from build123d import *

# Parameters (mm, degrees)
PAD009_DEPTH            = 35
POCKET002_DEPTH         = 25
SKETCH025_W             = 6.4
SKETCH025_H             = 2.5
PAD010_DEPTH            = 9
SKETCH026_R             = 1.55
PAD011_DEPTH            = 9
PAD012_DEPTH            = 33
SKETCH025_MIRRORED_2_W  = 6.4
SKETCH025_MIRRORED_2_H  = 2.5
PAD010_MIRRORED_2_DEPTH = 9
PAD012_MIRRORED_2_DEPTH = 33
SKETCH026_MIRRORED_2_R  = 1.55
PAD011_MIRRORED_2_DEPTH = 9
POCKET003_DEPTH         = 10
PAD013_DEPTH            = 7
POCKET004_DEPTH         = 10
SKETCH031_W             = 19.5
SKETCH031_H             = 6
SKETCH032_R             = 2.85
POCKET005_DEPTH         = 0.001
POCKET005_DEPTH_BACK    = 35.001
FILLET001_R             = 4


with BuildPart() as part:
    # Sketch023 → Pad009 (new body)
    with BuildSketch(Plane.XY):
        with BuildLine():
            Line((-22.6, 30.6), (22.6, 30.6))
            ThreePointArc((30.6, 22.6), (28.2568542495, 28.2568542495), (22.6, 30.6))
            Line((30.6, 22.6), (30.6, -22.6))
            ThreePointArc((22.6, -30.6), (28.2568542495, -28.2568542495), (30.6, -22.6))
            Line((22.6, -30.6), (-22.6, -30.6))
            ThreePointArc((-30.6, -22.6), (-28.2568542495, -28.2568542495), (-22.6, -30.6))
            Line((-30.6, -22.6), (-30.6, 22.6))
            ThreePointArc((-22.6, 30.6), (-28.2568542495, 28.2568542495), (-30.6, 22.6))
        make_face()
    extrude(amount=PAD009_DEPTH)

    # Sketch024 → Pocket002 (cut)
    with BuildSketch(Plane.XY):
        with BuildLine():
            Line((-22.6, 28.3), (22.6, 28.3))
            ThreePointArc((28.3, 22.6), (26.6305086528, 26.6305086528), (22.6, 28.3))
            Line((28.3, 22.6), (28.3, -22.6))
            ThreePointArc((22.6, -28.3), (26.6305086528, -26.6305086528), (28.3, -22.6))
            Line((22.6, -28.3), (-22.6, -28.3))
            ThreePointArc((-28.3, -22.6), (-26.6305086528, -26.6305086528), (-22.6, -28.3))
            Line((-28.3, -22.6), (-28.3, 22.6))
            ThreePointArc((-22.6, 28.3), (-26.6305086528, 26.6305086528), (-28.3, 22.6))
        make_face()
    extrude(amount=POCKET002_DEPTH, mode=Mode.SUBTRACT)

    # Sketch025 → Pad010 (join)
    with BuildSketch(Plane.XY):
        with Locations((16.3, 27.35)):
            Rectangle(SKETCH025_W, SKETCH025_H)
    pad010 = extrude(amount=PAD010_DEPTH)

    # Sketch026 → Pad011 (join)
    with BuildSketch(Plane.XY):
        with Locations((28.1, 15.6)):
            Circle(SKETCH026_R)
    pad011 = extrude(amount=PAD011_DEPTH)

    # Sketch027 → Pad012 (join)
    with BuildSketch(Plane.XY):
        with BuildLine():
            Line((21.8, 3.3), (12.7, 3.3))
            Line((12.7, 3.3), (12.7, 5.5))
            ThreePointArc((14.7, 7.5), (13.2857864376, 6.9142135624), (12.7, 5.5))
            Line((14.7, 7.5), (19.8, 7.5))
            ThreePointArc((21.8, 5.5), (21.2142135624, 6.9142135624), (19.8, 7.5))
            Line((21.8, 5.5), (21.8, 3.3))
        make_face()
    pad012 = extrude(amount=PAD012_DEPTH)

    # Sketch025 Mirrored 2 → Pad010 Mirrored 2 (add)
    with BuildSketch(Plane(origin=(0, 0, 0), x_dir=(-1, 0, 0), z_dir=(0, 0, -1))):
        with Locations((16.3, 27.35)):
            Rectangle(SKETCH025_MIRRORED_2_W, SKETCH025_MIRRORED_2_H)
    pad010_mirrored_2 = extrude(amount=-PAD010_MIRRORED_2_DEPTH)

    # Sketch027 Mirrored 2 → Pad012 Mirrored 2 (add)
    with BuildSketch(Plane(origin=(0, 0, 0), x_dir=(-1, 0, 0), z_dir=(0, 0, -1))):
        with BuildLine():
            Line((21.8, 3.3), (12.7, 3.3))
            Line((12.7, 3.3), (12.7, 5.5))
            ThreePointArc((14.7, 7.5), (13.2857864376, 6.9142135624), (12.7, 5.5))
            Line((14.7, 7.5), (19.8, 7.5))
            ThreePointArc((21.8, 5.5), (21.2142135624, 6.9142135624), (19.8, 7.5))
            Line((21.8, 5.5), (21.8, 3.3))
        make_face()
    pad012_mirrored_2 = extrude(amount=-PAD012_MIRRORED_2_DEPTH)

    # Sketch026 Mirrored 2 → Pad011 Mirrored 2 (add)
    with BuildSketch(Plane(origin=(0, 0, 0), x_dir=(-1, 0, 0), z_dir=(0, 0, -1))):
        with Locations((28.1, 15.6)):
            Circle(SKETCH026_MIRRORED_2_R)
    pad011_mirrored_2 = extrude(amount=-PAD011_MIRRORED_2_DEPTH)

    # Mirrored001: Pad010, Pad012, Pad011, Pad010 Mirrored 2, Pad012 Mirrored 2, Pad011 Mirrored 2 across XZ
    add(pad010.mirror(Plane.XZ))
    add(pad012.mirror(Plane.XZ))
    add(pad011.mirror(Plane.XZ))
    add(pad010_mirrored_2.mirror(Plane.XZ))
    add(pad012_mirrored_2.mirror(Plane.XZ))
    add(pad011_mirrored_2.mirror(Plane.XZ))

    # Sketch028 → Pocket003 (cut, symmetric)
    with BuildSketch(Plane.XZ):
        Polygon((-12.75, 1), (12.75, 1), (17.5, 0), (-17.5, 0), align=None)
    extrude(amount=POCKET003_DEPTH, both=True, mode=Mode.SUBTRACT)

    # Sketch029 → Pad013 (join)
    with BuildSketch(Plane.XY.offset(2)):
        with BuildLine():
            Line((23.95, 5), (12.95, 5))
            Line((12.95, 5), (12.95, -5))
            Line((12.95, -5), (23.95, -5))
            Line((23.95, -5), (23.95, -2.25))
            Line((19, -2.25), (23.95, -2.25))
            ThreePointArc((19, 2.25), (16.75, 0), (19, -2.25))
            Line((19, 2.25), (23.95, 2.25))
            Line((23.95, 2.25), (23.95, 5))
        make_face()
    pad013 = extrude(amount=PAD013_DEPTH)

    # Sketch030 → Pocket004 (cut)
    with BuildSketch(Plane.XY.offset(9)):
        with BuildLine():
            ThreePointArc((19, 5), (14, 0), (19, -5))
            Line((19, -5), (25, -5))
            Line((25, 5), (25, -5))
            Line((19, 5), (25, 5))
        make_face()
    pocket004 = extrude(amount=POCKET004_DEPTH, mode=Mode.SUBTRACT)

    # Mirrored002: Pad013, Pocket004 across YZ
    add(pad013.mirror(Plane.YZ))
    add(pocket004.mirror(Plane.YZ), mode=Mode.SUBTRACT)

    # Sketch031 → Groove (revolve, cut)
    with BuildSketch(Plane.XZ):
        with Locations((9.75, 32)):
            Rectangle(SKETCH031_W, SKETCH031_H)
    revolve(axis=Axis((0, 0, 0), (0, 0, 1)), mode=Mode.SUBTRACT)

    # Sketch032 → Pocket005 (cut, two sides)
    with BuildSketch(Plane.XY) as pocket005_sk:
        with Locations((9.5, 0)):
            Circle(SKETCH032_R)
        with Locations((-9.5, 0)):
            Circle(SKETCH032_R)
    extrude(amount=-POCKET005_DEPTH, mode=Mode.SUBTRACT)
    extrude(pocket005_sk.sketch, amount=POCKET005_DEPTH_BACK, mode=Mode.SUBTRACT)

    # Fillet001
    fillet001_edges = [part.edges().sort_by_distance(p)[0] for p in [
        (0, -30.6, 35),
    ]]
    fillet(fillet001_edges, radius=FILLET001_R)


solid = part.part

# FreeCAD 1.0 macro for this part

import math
import FreeCAD as App
import Part
import Sketcher


def edges_at(feature, points):
    """Names of the edges that pass closest to the given points."""
    edges = feature.Shape.Edges
    near = lambda p: min(range(len(edges)), key=lambda i: edges[i].distToShape(Part.Vertex(*p))[0])
    return sorted({f"Edge{near(p) + 1}" for p in points})

doc = App.newDocument("Part")
params = doc.addObject("Spreadsheet::Sheet", "Params")
for row, (alias, value) in enumerate([
    ("sketch1_radius", "8 mm"),
    ("sketch1_width", "45.2 mm"),
    ("pad1_length", "35 mm"),
    ("sketch2_radius", "5.7 mm"),
    ("sketch2_width", "45.2 mm"),
    ("pocket1_length", "25 mm"),
    ("sketch3_width", "6.4 mm"),
    ("sketch3_height", "2.5 mm"),
    ("pad2_length", "9 mm"),
    ("sketch4_diameter", "3.1 mm"),
    ("pad3_length", "9 mm"),
    ("sketch5_radius", "2 mm"),
    ("sketch5_width", "9.1 mm"),
    ("sketch5_height", "2.2 mm"),
    ("pad4_length", "33 mm"),
    ("sketch6_width", "6.4 mm"),
    ("sketch6_height", "2.5 mm"),
    ("pad5_length", "9 mm"),
    ("sketch7_radius", "2 mm"),
    ("sketch7_width", "9.1 mm"),
    ("sketch7_height", "2.2 mm"),
    ("pad6_length", "33 mm"),
    ("sketch8_diameter", "3.1 mm"),
    ("pad7_length", "9 mm"),
    ("sketch9_width", "35 mm"),
    ("sketch9_width2", "25.5 mm"),
    ("pocket2_length", "20 mm"),
    ("sketch10_width", "11 mm"),
    ("sketch10_height", "10 mm"),
    ("sketch10_radius", "2.25 mm"),
    ("sketch10_width2", "4.95 mm"),
    ("pad8_length", "7 mm"),
    ("sketch11_radius", "5 mm"),
    ("sketch11_width", "6 mm"),
    ("pocket3_length", "10 mm"),
    ("sketch12_height", "6 mm"),
    ("sketch12_width", "19.5 mm"),
    ("groove_angle", "360 deg"),
    ("sketch13_diameter", "5.7 mm"),
    ("fillet_radius", "4 mm"),
], start=1):
    params.set(f"A{row}", alias)
    params.set(f"B{row}", "=" + value)
    params.setAlias(f"B{row}", alias)

body = doc.addObject("PartDesign::Body", "Body")

sketch1 = body.newObject("Sketcher::SketchObject", "Sketch")
sketch1.AttachmentSupport = (doc.getObject("XY_Plane"), [""])
sketch1.MapMode = "FlatFace"
sketch1.addGeometry([
    Part.LineSegment(App.Vector(23, 31, 0), App.Vector(-23, 31, 0)),
    Part.ArcOfCircle(Part.Circle(App.Vector(-23, 23, 0), App.Vector(0, 0, 1), 8), math.radians(90), math.radians(180)),
    Part.LineSegment(App.Vector(-31, 23, 0), App.Vector(-31, -23, 0)),
    Part.ArcOfCircle(Part.Circle(App.Vector(-23, -23, 0), App.Vector(0, 0, 1), 8), math.radians(180), math.radians(270)),
    Part.LineSegment(App.Vector(-23, -31, 0), App.Vector(23, -31, 0)),
    Part.ArcOfCircle(Part.Circle(App.Vector(23, -23, 0), App.Vector(0, 0, 1), 8), math.radians(-90), math.radians(0)),
    Part.LineSegment(App.Vector(31, -23, 0), App.Vector(31, 23, 0)),
    Part.ArcOfCircle(Part.Circle(App.Vector(23, 23, 0), App.Vector(0, 0, 1), 8), math.radians(0), math.radians(90)),
], False)
sketch1.addConstraint([
    Sketcher.Constraint("Tangent", 0, 2, 1, 1),
    Sketcher.Constraint("Tangent", 1, 2, 2, 1),
    Sketcher.Constraint("Tangent", 2, 2, 3, 1),
    Sketcher.Constraint("Tangent", 3, 2, 4, 1),
    Sketcher.Constraint("Tangent", 4, 2, 5, 1),
    Sketcher.Constraint("Tangent", 5, 2, 6, 1),
    Sketcher.Constraint("Tangent", 6, 2, 7, 1),
    Sketcher.Constraint("Tangent", 7, 2, 0, 1),
    Sketcher.Constraint("Horizontal", 0),
    Sketcher.Constraint("Vertical", 2),
    Sketcher.Constraint("Horizontal", 4),
    Sketcher.Constraint("Vertical", 6),
    Sketcher.Constraint("Equal", 1, 3),
    Sketcher.Constraint("Equal", 3, 5),
    Sketcher.Constraint("Equal", 5, 7),
    Sketcher.Constraint("Symmetric", 1, 3, 5, 3, -1, 1),
    Sketcher.Constraint("Equal", 4, 2),
    Sketcher.Constraint("Radius", 1, 8.0),
    Sketcher.Constraint("DistanceX", 0, 2, 0, 1, 45.2),
])
sketch1.setExpression("Constraints[17]", "Params.sketch1_radius")
sketch1.setExpression("Constraints[18]", "Params.sketch1_width")
pad1 = body.newObject("PartDesign::Pad", "Pad")
pad1.Profile = sketch1
pad1.setExpression("Length", "Params.pad1_length")

sketch2 = body.newObject("Sketcher::SketchObject", "Sketch001")
sketch2.AttachmentSupport = (doc.getObject("XY_Plane"), [""])
sketch2.MapMode = "FlatFace"
sketch2.addGeometry([
    Part.LineSegment(App.Vector(23, 28, 0), App.Vector(-23, 28, 0)),
    Part.ArcOfCircle(Part.Circle(App.Vector(-23, 23, 0), App.Vector(0, 0, 1), 6), math.radians(90), math.radians(180)),
    Part.LineSegment(App.Vector(-28, 23, 0), App.Vector(-28, -23, 0)),
    Part.ArcOfCircle(Part.Circle(App.Vector(-23, -23, 0), App.Vector(0, 0, 1), 6), math.radians(180), math.radians(270)),
    Part.LineSegment(App.Vector(-23, -28, 0), App.Vector(23, -28, 0)),
    Part.ArcOfCircle(Part.Circle(App.Vector(23, -23, 0), App.Vector(0, 0, 1), 6), math.radians(-90), math.radians(0)),
    Part.LineSegment(App.Vector(28, -23, 0), App.Vector(28, 23, 0)),
    Part.ArcOfCircle(Part.Circle(App.Vector(23, 23, 0), App.Vector(0, 0, 1), 6), math.radians(0), math.radians(90)),
], False)
sketch2.addConstraint([
    Sketcher.Constraint("Tangent", 0, 2, 1, 1),
    Sketcher.Constraint("Tangent", 1, 2, 2, 1),
    Sketcher.Constraint("Tangent", 2, 2, 3, 1),
    Sketcher.Constraint("Tangent", 3, 2, 4, 1),
    Sketcher.Constraint("Tangent", 4, 2, 5, 1),
    Sketcher.Constraint("Tangent", 5, 2, 6, 1),
    Sketcher.Constraint("Tangent", 6, 2, 7, 1),
    Sketcher.Constraint("Tangent", 7, 2, 0, 1),
    Sketcher.Constraint("Horizontal", 0),
    Sketcher.Constraint("Vertical", 2),
    Sketcher.Constraint("Horizontal", 4),
    Sketcher.Constraint("Vertical", 6),
    Sketcher.Constraint("Equal", 1, 3),
    Sketcher.Constraint("Equal", 3, 5),
    Sketcher.Constraint("Equal", 5, 7),
    Sketcher.Constraint("Symmetric", 1, 3, 5, 3, -1, 1),
    Sketcher.Constraint("Equal", 4, 2),
    Sketcher.Constraint("Radius", 1, 5.7),
    Sketcher.Constraint("DistanceX", 0, 2, 0, 1, 45.2),
])
sketch2.setExpression("Constraints[17]", "Params.sketch2_radius")
sketch2.setExpression("Constraints[18]", "Params.sketch2_width")
pocket1 = body.newObject("PartDesign::Pocket", "Pocket")
pocket1.Profile = sketch2
pocket1.setExpression("Length", "Params.pocket1_length")
pocket1.Reversed = True

sketch3 = body.newObject("Sketcher::SketchObject", "Sketch002")
sketch3.AttachmentSupport = (doc.getObject("XY_Plane"), [""])
sketch3.MapMode = "FlatFace"
sketch3.addGeometry([
    Part.LineSegment(App.Vector(13.1, 28.6, 0), App.Vector(13.1, 26.1, 0)),
    Part.LineSegment(App.Vector(13.1, 26.1, 0), App.Vector(19.5, 26.1, 0)),
    Part.LineSegment(App.Vector(19.5, 26.1, 0), App.Vector(19.5, 28.6, 0)),
    Part.LineSegment(App.Vector(19.5, 28.6, 0), App.Vector(13.1, 28.6, 0)),
], False)
sketch3.addConstraint([
    Sketcher.Constraint("Coincident", 0, 2, 1, 1),
    Sketcher.Constraint("Coincident", 1, 2, 2, 1),
    Sketcher.Constraint("Coincident", 2, 2, 3, 1),
    Sketcher.Constraint("Coincident", 3, 2, 0, 1),
    Sketcher.Constraint("Vertical", 0),
    Sketcher.Constraint("Horizontal", 1),
    Sketcher.Constraint("Vertical", 2),
    Sketcher.Constraint("Horizontal", 3),
    Sketcher.Constraint("DistanceX", 1, 1, 1, 2, 6.4),
    Sketcher.Constraint("DistanceY", 0, 2, 0, 1, 2.5),
    Sketcher.Constraint("DistanceX", -1, 1, 0, 2, 13.1),
    Sketcher.Constraint("DistanceY", -1, 1, 0, 2, 26.1),
])
sketch3.setExpression("Constraints[8]", "Params.sketch3_width")
sketch3.setExpression("Constraints[9]", "Params.sketch3_height")
pad2 = body.newObject("PartDesign::Pad", "Pad001")
pad2.Profile = sketch3
pad2.setExpression("Length", "Params.pad2_length")

sketch4 = body.newObject("Sketcher::SketchObject", "Sketch003")
sketch4.AttachmentSupport = (doc.getObject("XY_Plane"), [""])
sketch4.MapMode = "FlatFace"
sketch4.addGeometry(Part.Circle(App.Vector(28.1, 15.6, 0), App.Vector(0, 0, 1), 1.6), False)
sketch4.addConstraint([
    Sketcher.Constraint("Diameter", 0, 3.1),
    Sketcher.Constraint("DistanceX", -1, 1, 0, 3, 28.1),
    Sketcher.Constraint("DistanceY", -1, 1, 0, 3, 15.6),
])
sketch4.setExpression("Constraints[0]", "Params.sketch4_diameter")
pad3 = body.newObject("PartDesign::Pad", "Pad002")
pad3.Profile = sketch4
pad3.setExpression("Length", "Params.pad3_length")

sketch5 = body.newObject("Sketcher::SketchObject", "Sketch004")
sketch5.AttachmentSupport = (doc.getObject("XY_Plane"), [""])
sketch5.MapMode = "FlatFace"
sketch5.addGeometry([
    Part.LineSegment(App.Vector(12.7, 3.3, 0), App.Vector(21.8, 3.3, 0)),
    Part.LineSegment(App.Vector(21.8, 3.3, 0), App.Vector(21.8, 5.5, 0)),
    Part.ArcOfCircle(Part.Circle(App.Vector(19.8, 5.5, 0), App.Vector(0, 0, 1), 2), math.radians(0), math.radians(90)),
    Part.LineSegment(App.Vector(19.8, 7.5, 0), App.Vector(14.7, 7.5, 0)),
    Part.ArcOfCircle(Part.Circle(App.Vector(14.7, 5.5, 0), App.Vector(0, 0, 1), 2), math.radians(90), math.radians(180)),
    Part.LineSegment(App.Vector(12.7, 5.5, 0), App.Vector(12.7, 3.3, 0)),
], False)
sketch5.addConstraint([
    Sketcher.Constraint("Coincident", 0, 2, 1, 1),
    Sketcher.Constraint("Tangent", 1, 2, 2, 1),
    Sketcher.Constraint("Tangent", 2, 2, 3, 1),
    Sketcher.Constraint("Tangent", 3, 2, 4, 1),
    Sketcher.Constraint("Tangent", 4, 2, 5, 1),
    Sketcher.Constraint("Coincident", 5, 2, 0, 1),
    Sketcher.Constraint("Horizontal", 0),
    Sketcher.Constraint("Vertical", 1),
    Sketcher.Constraint("Horizontal", 3),
    Sketcher.Constraint("Vertical", 5),
    Sketcher.Constraint("Equal", 2, 4),
    Sketcher.Constraint("Radius", 2, 2.0),
    Sketcher.Constraint("DistanceX", 0, 1, 0, 2, 9.1),
    Sketcher.Constraint("DistanceY", 1, 1, 1, 2, 2.2),
    Sketcher.Constraint("DistanceX", -1, 1, 2, 3, 19.8),
    Sketcher.Constraint("DistanceY", -1, 1, 2, 3, 5.5),
])
sketch5.setExpression("Constraints[11]", "Params.sketch5_radius")
sketch5.setExpression("Constraints[12]", "Params.sketch5_width")
sketch5.setExpression("Constraints[13]", "Params.sketch5_height")
pad4 = body.newObject("PartDesign::Pad", "Pad003")
pad4.Profile = sketch5
pad4.setExpression("Length", "Params.pad4_length")

sketch6 = body.newObject("Sketcher::SketchObject", "Sketch005")
sketch6.AttachmentSupport = (doc.getObject("XY_Plane"), [""])
sketch6.MapMode = "FlatFace"
sketch6.addGeometry([
    Part.LineSegment(App.Vector(-13.1, 28.6, 0), App.Vector(-13.1, 26.1, 0)),
    Part.LineSegment(App.Vector(-13.1, 26.1, 0), App.Vector(-19.5, 26.1, 0)),
    Part.LineSegment(App.Vector(-19.5, 26.1, 0), App.Vector(-19.5, 28.6, 0)),
    Part.LineSegment(App.Vector(-19.5, 28.6, 0), App.Vector(-13.1, 28.6, 0)),
], False)
sketch6.addConstraint([
    Sketcher.Constraint("Coincident", 0, 2, 1, 1),
    Sketcher.Constraint("Coincident", 1, 2, 2, 1),
    Sketcher.Constraint("Coincident", 2, 2, 3, 1),
    Sketcher.Constraint("Coincident", 3, 2, 0, 1),
    Sketcher.Constraint("Vertical", 0),
    Sketcher.Constraint("Horizontal", 1),
    Sketcher.Constraint("Vertical", 2),
    Sketcher.Constraint("Horizontal", 3),
    Sketcher.Constraint("DistanceX", 1, 2, 1, 1, 6.4),
    Sketcher.Constraint("DistanceY", 0, 2, 0, 1, 2.5),
    Sketcher.Constraint("DistanceX", 0, 2, -1, 1, 13.1),
    Sketcher.Constraint("DistanceY", -1, 1, 0, 2, 26.1),
])
sketch6.setExpression("Constraints[8]", "Params.sketch6_width")
sketch6.setExpression("Constraints[9]", "Params.sketch6_height")
pad5 = body.newObject("PartDesign::Pad", "Pad004")
pad5.Profile = sketch6
pad5.setExpression("Length", "Params.pad5_length")

sketch7 = body.newObject("Sketcher::SketchObject", "Sketch006")
sketch7.AttachmentSupport = (doc.getObject("XY_Plane"), [""])
sketch7.MapMode = "FlatFace"
sketch7.addGeometry([
    Part.LineSegment(App.Vector(-12.7, 3.3, 0), App.Vector(-21.8, 3.3, 0)),
    Part.LineSegment(App.Vector(-21.8, 3.3, 0), App.Vector(-21.8, 5.5, 0)),
    Part.ArcOfCircle(Part.Circle(App.Vector(-19.8, 5.5, 0), App.Vector(0, 0, 1), 2), math.radians(90), math.radians(180)),
    Part.LineSegment(App.Vector(-19.8, 7.5, 0), App.Vector(-14.7, 7.5, 0)),
    Part.ArcOfCircle(Part.Circle(App.Vector(-14.7, 5.5, 0), App.Vector(0, 0, 1), 2), math.radians(0), math.radians(90)),
    Part.LineSegment(App.Vector(-12.7, 5.5, 0), App.Vector(-12.7, 3.3, 0)),
], False)
sketch7.addConstraint([
    Sketcher.Constraint("Coincident", 0, 2, 1, 1),
    Sketcher.Constraint("Tangent", 1, 2, 2, 2),
    Sketcher.Constraint("Tangent", 2, 1, 3, 1),
    Sketcher.Constraint("Tangent", 3, 2, 4, 2),
    Sketcher.Constraint("Tangent", 4, 1, 5, 1),
    Sketcher.Constraint("Coincident", 5, 2, 0, 1),
    Sketcher.Constraint("Horizontal", 0),
    Sketcher.Constraint("Vertical", 1),
    Sketcher.Constraint("Horizontal", 3),
    Sketcher.Constraint("Vertical", 5),
    Sketcher.Constraint("Equal", 2, 4),
    Sketcher.Constraint("Radius", 2, 2.0),
    Sketcher.Constraint("DistanceX", 0, 2, 0, 1, 9.1),
    Sketcher.Constraint("DistanceY", 1, 1, 1, 2, 2.2),
    Sketcher.Constraint("DistanceX", 2, 3, -1, 1, 19.8),
    Sketcher.Constraint("DistanceY", -1, 1, 2, 3, 5.5),
])
sketch7.setExpression("Constraints[11]", "Params.sketch7_radius")
sketch7.setExpression("Constraints[12]", "Params.sketch7_width")
sketch7.setExpression("Constraints[13]", "Params.sketch7_height")
pad6 = body.newObject("PartDesign::Pad", "Pad005")
pad6.Profile = sketch7
pad6.setExpression("Length", "Params.pad6_length")

sketch8 = body.newObject("Sketcher::SketchObject", "Sketch007")
sketch8.AttachmentSupport = (doc.getObject("XY_Plane"), [""])
sketch8.MapMode = "FlatFace"
sketch8.addGeometry(Part.Circle(App.Vector(-28.1, 15.6, 0), App.Vector(0, 0, 1), 1.6), False)
sketch8.addConstraint([
    Sketcher.Constraint("Diameter", 0, 3.1),
    Sketcher.Constraint("DistanceX", 0, 3, -1, 1, 28.1),
    Sketcher.Constraint("DistanceY", -1, 1, 0, 3, 15.6),
])
sketch8.setExpression("Constraints[0]", "Params.sketch8_diameter")
pad7 = body.newObject("PartDesign::Pad", "Pad006")
pad7.Profile = sketch8
pad7.setExpression("Length", "Params.pad7_length")
doc.recompute()

mirrored = body.newObject("PartDesign::Mirrored", "Mirrored")
mirrored.Originals = [pad2, pad4, pad3, pad5, pad6, pad7]
mirrored.MirrorPlane = (doc.getObject("XZ_Plane"), [""])
body.Tip = mirrored

sketch9 = body.newObject("Sketcher::SketchObject", "Sketch008")
sketch9.AttachmentSupport = (doc.getObject("XZ_Plane"), [""])
sketch9.MapMode = "FlatFace"
sketch9.addGeometry([
    Part.LineSegment(App.Vector(12.8, 1, 0), App.Vector(-12.8, 1, 0)),
    Part.LineSegment(App.Vector(-12.8, 1, 0), App.Vector(-17.5, 0, 0)),
    Part.LineSegment(App.Vector(-17.5, 0, 0), App.Vector(17.5, 0, 0)),
    Part.LineSegment(App.Vector(17.5, 0, 0), App.Vector(12.8, 1, 0)),
], False)
sketch9.addConstraint([
    Sketcher.Constraint("Coincident", 0, 2, 1, 1),
    Sketcher.Constraint("Coincident", 1, 2, 2, 1),
    Sketcher.Constraint("Coincident", 2, 2, 3, 1),
    Sketcher.Constraint("Coincident", 3, 2, 0, 1),
    Sketcher.Constraint("Horizontal", 0),
    Sketcher.Constraint("Horizontal", 2),
    Sketcher.Constraint("Symmetric", 1, 2, 2, 2, -1, 1),
    Sketcher.Constraint("Equal", 1, 3),
    Sketcher.Constraint("DistanceX", 2, 1, 2, 2, 35.0),
    Sketcher.Constraint("DistanceX", 0, 2, 0, 1, 25.5),
    Sketcher.Constraint("DistanceY", -1, 1, 0, 2, 1.0),
])
sketch9.setExpression("Constraints[8]", "Params.sketch9_width")
sketch9.setExpression("Constraints[9]", "Params.sketch9_width2")
pocket2 = body.newObject("PartDesign::Pocket", "Pocket001")
pocket2.Profile = sketch9
pocket2.setExpression("Length", "Params.pocket2_length")
pocket2.Midplane = True

sketch10 = body.newObject("Sketcher::SketchObject", "Sketch009")
sketch10.AttachmentSupport = (doc.getObject("XY_Plane"), [""])
sketch10.MapMode = "FlatFace"
sketch10.AttachmentOffset = App.Placement(App.Vector(0, 0, 2), App.Rotation())
sketch10.addGeometry([
    Part.LineSegment(App.Vector(23.9, 5, 0), App.Vector(12.9, 5, 0)),
    Part.LineSegment(App.Vector(12.9, 5, 0), App.Vector(12.9, -5, 0)),
    Part.LineSegment(App.Vector(12.9, -5, 0), App.Vector(23.9, -5, 0)),
    Part.LineSegment(App.Vector(23.9, -5, 0), App.Vector(23.9, -2.2, 0)),
    Part.LineSegment(App.Vector(23.9, -2.2, 0), App.Vector(19, -2.2, 0)),
    Part.ArcOfCircle(Part.Circle(App.Vector(19, 0, 0), App.Vector(0, 0, 1), 2.2), math.radians(90), math.radians(270)),
    Part.LineSegment(App.Vector(19, 2.2, 0), App.Vector(23.9, 2.2, 0)),
    Part.LineSegment(App.Vector(23.9, 2.2, 0), App.Vector(23.9, 5, 0)),
], False)
sketch10.addConstraint([
    Sketcher.Constraint("Coincident", 0, 2, 1, 1),
    Sketcher.Constraint("Coincident", 1, 2, 2, 1),
    Sketcher.Constraint("Coincident", 2, 2, 3, 1),
    Sketcher.Constraint("Coincident", 3, 2, 4, 1),
    Sketcher.Constraint("Tangent", 4, 2, 5, 2),
    Sketcher.Constraint("Tangent", 5, 1, 6, 1),
    Sketcher.Constraint("Coincident", 6, 2, 7, 1),
    Sketcher.Constraint("Coincident", 7, 2, 0, 1),
    Sketcher.Constraint("Horizontal", 0),
    Sketcher.Constraint("Vertical", 1),
    Sketcher.Constraint("Horizontal", 2),
    Sketcher.Constraint("Vertical", 3),
    Sketcher.Constraint("Horizontal", 4),
    Sketcher.Constraint("Horizontal", 6),
    Sketcher.Constraint("Vertical", 7),
    Sketcher.Constraint("Symmetric", 3, 2, 6, 2, -1),
    Sketcher.Constraint("Equal", 3, 7),
    Sketcher.Constraint("DistanceX", 0, 2, 0, 1, 11.0),
    Sketcher.Constraint("DistanceY", 1, 2, 1, 1, 10.0),
    Sketcher.Constraint("Radius", 5, 2.25),
    Sketcher.Constraint("DistanceX", -1, 1, 5, 3, 19.0),
    Sketcher.Constraint("DistanceX", 4, 2, 4, 1, 4.95),
])
sketch10.setExpression("Constraints[17]", "Params.sketch10_width")
sketch10.setExpression("Constraints[18]", "Params.sketch10_height")
sketch10.setExpression("Constraints[19]", "Params.sketch10_radius")
sketch10.setExpression("Constraints[21]", "Params.sketch10_width2")
pad8 = body.newObject("PartDesign::Pad", "Pad007")
pad8.Profile = sketch10
pad8.setExpression("Length", "Params.pad8_length")

sketch11 = body.newObject("Sketcher::SketchObject", "Sketch010")
sketch11.AttachmentSupport = (doc.getObject("XY_Plane"), [""])
sketch11.MapMode = "FlatFace"
sketch11.AttachmentOffset = App.Placement(App.Vector(0, 0, 9), App.Rotation())
sketch11.addGeometry([
    Part.ArcOfCircle(Part.Circle(App.Vector(19, 0, 0), App.Vector(0, 0, 1), 5), math.radians(90), math.radians(270)),
    Part.LineSegment(App.Vector(19, -5, 0), App.Vector(25, -5, 0)),
    Part.LineSegment(App.Vector(25, -5, 0), App.Vector(25, 5, 0)),
    Part.LineSegment(App.Vector(25, 5, 0), App.Vector(19, 5, 0)),
], False)
sketch11.addConstraint([
    Sketcher.Constraint("Tangent", 0, 2, 1, 1),
    Sketcher.Constraint("Coincident", 1, 2, 2, 1),
    Sketcher.Constraint("Coincident", 2, 2, 3, 1),
    Sketcher.Constraint("Tangent", 3, 2, 0, 1),
    Sketcher.Constraint("Horizontal", 1),
    Sketcher.Constraint("Vertical", 2),
    Sketcher.Constraint("Horizontal", 3),
    Sketcher.Constraint("PointOnObject", 0, 3, -1),
    Sketcher.Constraint("Radius", 0, 5.0),
    Sketcher.Constraint("DistanceX", 1, 1, 1, 2, 6.0),
    Sketcher.Constraint("DistanceX", -1, 1, 0, 3, 19.0),
])
sketch11.setExpression("Constraints[8]", "Params.sketch11_radius")
sketch11.setExpression("Constraints[9]", "Params.sketch11_width")
pocket3 = body.newObject("PartDesign::Pocket", "Pocket002")
pocket3.Profile = sketch11
pocket3.setExpression("Length", "Params.pocket3_length")
pocket3.Reversed = True
doc.recompute()

mirrored2 = body.newObject("PartDesign::Mirrored", "Mirrored001")
mirrored2.Originals = [pad8, pocket3]
mirrored2.MirrorPlane = (doc.getObject("YZ_Plane"), [""])
body.Tip = mirrored2

sketch12 = body.newObject("Sketcher::SketchObject", "Sketch011")
sketch12.AttachmentSupport = (doc.getObject("XZ_Plane"), [""])
sketch12.MapMode = "FlatFace"
sketch12.addGeometry([
    Part.LineSegment(App.Vector(0, 35, 0), App.Vector(0, 29, 0)),
    Part.LineSegment(App.Vector(0, 29, 0), App.Vector(20, 29, 0)),
    Part.LineSegment(App.Vector(20, 29, 0), App.Vector(20, 35, 0)),
    Part.LineSegment(App.Vector(20, 35, 0), App.Vector(0, 35, 0)),
], False)
sketch12.addConstraint([
    Sketcher.Constraint("Coincident", 0, 2, 1, 1),
    Sketcher.Constraint("Coincident", 1, 2, 2, 1),
    Sketcher.Constraint("Coincident", 2, 2, 3, 1),
    Sketcher.Constraint("Coincident", 3, 2, 0, 1),
    Sketcher.Constraint("Vertical", 0),
    Sketcher.Constraint("Horizontal", 1),
    Sketcher.Constraint("Vertical", 2),
    Sketcher.Constraint("Horizontal", 3),
    Sketcher.Constraint("PointOnObject", 0, 2, -2),
    Sketcher.Constraint("DistanceY", 0, 2, 0, 1, 6.0),
    Sketcher.Constraint("DistanceX", 1, 1, 1, 2, 19.5),
    Sketcher.Constraint("DistanceY", -1, 1, 0, 2, 29.0),
])
sketch12.setExpression("Constraints[9]", "Params.sketch12_height")
sketch12.setExpression("Constraints[10]", "Params.sketch12_width")
groove = body.newObject("PartDesign::Groove", "Groove")
groove.Profile = sketch12
groove.ReferenceAxis = (sketch12, ["V_Axis"])
groove.setExpression("Angle", "Params.groove_angle")

sketch13 = body.newObject("Sketcher::SketchObject", "Sketch012")
sketch13.AttachmentSupport = (doc.getObject("XY_Plane"), [""])
sketch13.MapMode = "FlatFace"
sketch13.addGeometry([
    Part.Circle(App.Vector(9.5, 0, 0), App.Vector(0, 0, 1), 2.9),
    Part.Circle(App.Vector(-9.5, 0, 0), App.Vector(0, 0, 1), 2.9),
], False)
sketch13.addConstraint([
    Sketcher.Constraint("Equal", 0, 1),
    Sketcher.Constraint("Symmetric", 0, 3, 1, 3, -1, 1),
    Sketcher.Constraint("PointOnObject", 0, 3, -1),
    Sketcher.Constraint("Diameter", 0, 5.7),
    Sketcher.Constraint("DistanceX", 1, 3, 0, 3, 19.0),
])
sketch13.setExpression("Constraints[3]", "Params.sketch13_diameter")
pocket4 = body.newObject("PartDesign::Pocket", "Pocket003")
pocket4.Profile = sketch13
pocket4.Type = "ThroughAll"
pocket4.Midplane = True
doc.recompute()

fillet = body.newObject("PartDesign::Fillet", "Fillet")
fillet.Base = (pocket4, edges_at(pocket4, [(0, -30.6, 35)]))
fillet.setExpression("Radius", "Params.fillet_radius")

doc.recompute()
